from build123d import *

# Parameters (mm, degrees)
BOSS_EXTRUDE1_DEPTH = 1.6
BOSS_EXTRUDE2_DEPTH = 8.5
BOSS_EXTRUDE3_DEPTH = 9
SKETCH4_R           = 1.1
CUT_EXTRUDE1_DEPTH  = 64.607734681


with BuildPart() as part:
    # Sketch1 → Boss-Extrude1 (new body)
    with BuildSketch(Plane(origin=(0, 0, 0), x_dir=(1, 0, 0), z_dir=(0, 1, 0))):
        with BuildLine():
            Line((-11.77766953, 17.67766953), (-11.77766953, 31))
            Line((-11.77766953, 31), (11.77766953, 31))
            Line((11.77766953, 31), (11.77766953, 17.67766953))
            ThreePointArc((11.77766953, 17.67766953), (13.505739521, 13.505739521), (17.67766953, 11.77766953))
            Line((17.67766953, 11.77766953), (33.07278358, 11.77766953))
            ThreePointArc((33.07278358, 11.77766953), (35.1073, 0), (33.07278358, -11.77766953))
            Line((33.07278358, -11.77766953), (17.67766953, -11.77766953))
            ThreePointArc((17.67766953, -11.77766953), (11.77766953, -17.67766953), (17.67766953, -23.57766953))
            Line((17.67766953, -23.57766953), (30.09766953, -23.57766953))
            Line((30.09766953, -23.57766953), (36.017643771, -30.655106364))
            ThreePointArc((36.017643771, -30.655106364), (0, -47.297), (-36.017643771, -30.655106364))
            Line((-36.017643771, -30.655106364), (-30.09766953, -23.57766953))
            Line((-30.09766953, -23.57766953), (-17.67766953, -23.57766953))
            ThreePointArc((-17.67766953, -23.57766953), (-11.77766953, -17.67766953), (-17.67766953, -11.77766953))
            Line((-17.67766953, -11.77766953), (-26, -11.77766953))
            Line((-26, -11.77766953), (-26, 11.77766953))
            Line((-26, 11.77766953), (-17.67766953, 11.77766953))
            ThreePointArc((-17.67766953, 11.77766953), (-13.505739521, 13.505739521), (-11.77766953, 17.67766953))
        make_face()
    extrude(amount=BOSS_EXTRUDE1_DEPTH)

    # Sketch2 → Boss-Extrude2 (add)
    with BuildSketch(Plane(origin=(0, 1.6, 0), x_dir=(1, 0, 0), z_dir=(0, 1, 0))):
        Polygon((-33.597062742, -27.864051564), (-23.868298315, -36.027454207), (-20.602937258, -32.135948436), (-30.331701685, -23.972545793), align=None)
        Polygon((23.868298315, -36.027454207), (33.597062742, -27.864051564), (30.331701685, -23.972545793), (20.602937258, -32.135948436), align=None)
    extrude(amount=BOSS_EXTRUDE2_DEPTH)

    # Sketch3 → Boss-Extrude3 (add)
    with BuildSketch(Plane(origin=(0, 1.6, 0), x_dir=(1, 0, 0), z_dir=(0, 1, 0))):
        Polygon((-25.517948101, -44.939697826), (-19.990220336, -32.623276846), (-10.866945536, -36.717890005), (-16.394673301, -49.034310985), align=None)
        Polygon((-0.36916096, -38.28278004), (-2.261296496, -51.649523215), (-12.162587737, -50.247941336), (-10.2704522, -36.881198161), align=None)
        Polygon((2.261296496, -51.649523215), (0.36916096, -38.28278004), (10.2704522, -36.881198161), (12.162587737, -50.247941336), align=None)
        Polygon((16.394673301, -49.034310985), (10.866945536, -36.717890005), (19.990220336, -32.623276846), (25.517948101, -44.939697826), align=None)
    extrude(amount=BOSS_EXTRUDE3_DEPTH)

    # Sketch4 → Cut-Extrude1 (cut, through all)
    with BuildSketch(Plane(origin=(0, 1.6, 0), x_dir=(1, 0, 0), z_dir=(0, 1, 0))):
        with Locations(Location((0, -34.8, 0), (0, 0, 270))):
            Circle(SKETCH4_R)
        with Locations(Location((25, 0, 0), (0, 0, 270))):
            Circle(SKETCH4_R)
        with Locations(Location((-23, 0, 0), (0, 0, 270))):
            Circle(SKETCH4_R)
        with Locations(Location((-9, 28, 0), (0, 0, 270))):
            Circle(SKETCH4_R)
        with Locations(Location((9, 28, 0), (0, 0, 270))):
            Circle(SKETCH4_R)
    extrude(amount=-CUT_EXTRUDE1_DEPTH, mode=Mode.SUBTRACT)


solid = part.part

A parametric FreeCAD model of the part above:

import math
import FreeCAD as App
import Part
import Sketcher
from FreeCAD import Vector
Q = App.Units.Quantity


def add_polygon(sketch, points):
    """Adds a closed chain of lines whose ends are joined by coincident constraints."""
    first, n = sketch.GeometryCount, len(points)
    for a, b in zip(points, points[1:] + points[:1]):
        sketch.addGeometry(Part.LineSegment(App.Vector(*a, 0), App.Vector(*b, 0)), False)
    for i in range(n):
        sketch.addConstraint(Sketcher.Constraint("Coincident", first + i, 2, first + (i + 1) % n, 1))

doc = App.newDocument("Part")
body = doc.addObject("PartDesign::Body", "Body")

# Sketch on XZ plane
sketch1 = doc.addObject("Sketcher::SketchObject", "Sketch")
body.addObject(sketch1)
sketch1.AttachmentSupport = (doc.XZ_Plane, [""])
sketch1.MapMode = "FlatFace"
sketch1.addGeometry(Part.LineSegment(Vector(-12, -31, 0), Vector(-12, -18, 0)), False)
sketch1.addGeometry(Part.ArcOfCircle(Part.Circle(Vector(-18, -18, 0), Vector(0, 0, 1), 6), math.radians(0), math.radians(90)), False)
sketch1.addGeometry(Part.LineSegment(Vector(-18, -12, 0), Vector(-26, -12, 0)), False)
sketch1.addGeometry(Part.LineSegment(Vector(-26, -12, 0), Vector(-26, 12, 0)), False)
sketch1.addGeometry(Part.LineSegment(Vector(-26, 12, 0), Vector(-18, 12, 0)), False)
sketch1.addGeometry(Part.ArcOfCircle(Part.Circle(Vector(-18, 18, 0), Vector(0, 0, 1), 6), math.radians(-90), math.radians(90)), False)
sketch1.addGeometry(Part.LineSegment(Vector(-18, 24, 0), Vector(-30, 24, 0)), False)
sketch1.addGeometry(Part.LineSegment(Vector(-30, 24, 0), Vector(-36, 31, 0)), False)
sketch1.addGeometry(Part.ArcOfCircle(Part.Circle(Vector(0, 0, 0), Vector(0, 0, 1), 47), math.radians(40), math.radians(140)), False)
sketch1.addGeometry(Part.LineSegment(Vector(36, 31, 0), Vector(30, 24, 0)), False)
sketch1.addGeometry(Part.LineSegment(Vector(30, 24, 0), Vector(18, 24, 0)), False)
sketch1.addGeometry(Part.ArcOfCircle(Part.Circle(Vector(18, 18, 0), Vector(0, 0, 1), 6), math.radians(90), math.radians(270)), False)
sketch1.addGeometry(Part.LineSegment(Vector(18, 12, 0), Vector(33, 12, 0)), False)
sketch1.addGeometry(Part.ArcOfCircle(Part.Circle(Vector(0, 0, 0), Vector(0, 0, 1), 35), math.radians(-20), math.radians(20)), False)
sketch1.addGeometry(Part.LineSegment(Vector(33, -12, 0), Vector(18, -12, 0)), False)
sketch1.addGeometry(Part.ArcOfCircle(Part.Circle(Vector(18, -18, 0), Vector(0, 0, 1), 6), math.radians(90), math.radians(180)), False)
sketch1.addGeometry(Part.LineSegment(Vector(12, -18, 0), Vector(12, -31, 0)), False)
sketch1.addGeometry(Part.LineSegment(Vector(12, -31, 0), Vector(-12, -31, 0)), False)
sketch1.addConstraint(Sketcher.Constraint("Tangent", 0, 2, 1, 1))
sketch1.addConstraint(Sketcher.Constraint("Tangent", 1, 2, 2, 1))
sketch1.addConstraint(Sketcher.Constraint("Coincident", 2, 2, 3, 1))
sketch1.addConstraint(Sketcher.Constraint("Coincident", 3, 2, 4, 1))
sketch1.addConstraint(Sketcher.Constraint("Tangent", 4, 2, 5, 1))
sketch1.addConstraint(Sketcher.Constraint("Tangent", 5, 2, 6, 1))
sketch1.addConstraint(Sketcher.Constraint("Coincident", 6, 2, 7, 1))
sketch1.addConstraint(Sketcher.Constraint("Coincident", 7, 2, 8, 2))
sketch1.addConstraint(Sketcher.Constraint("Coincident", 8, 1, 9, 1))
sketch1.addConstraint(Sketcher.Constraint("Coincident", 9, 2, 10, 1))
sketch1.addConstraint(Sketcher.Constraint("Tangent", 10, 2, 11, 1))
sketch1.addConstraint(Sketcher.Constraint("Tangent", 11, 2, 12, 1))
sketch1.addConstraint(Sketcher.Constraint("Coincident", 12, 2, 13, 2))
sketch1.addConstraint(Sketcher.Constraint("Coincident", 13, 1, 14, 1))
sketch1.addConstraint(Sketcher.Constraint("Tangent", 14, 2, 15, 1))
sketch1.addConstraint(Sketcher.Constraint("Tangent", 15, 2, 16, 1))
sketch1.addConstraint(Sketcher.Constraint("Coincident", 16, 2, 17, 1))
sketch1.addConstraint(Sketcher.Constraint("Coincident", 17, 2, 0, 1))
sketch1.addConstraint(Sketcher.Constraint("Vertical", 0))
sketch1.addConstraint(Sketcher.Constraint("Horizontal", 2))
sketch1.addConstraint(Sketcher.Constraint("Vertical", 3))
sketch1.addConstraint(Sketcher.Constraint("Horizontal", 4))
sketch1.addConstraint(Sketcher.Constraint("Horizontal", 6))
sketch1.addConstraint(Sketcher.Constraint("Horizontal", 10))
sketch1.addConstraint(Sketcher.Constraint("Horizontal", 12))
sketch1.addConstraint(Sketcher.Constraint("Horizontal", 14))
sketch1.addConstraint(Sketcher.Constraint("Vertical", 16))
sketch1.addConstraint(Sketcher.Constraint("Horizontal", 17))
sketch1.addConstraint(Sketcher.Constraint("Coincident", 8, 3, -1, 1))
sketch1.addConstraint(Sketcher.Constraint("Coincident", 13, 3, -1, 1))
sketch1.addConstraint(Sketcher.Constraint("Equal", 1, 5))
sketch1.addConstraint(Sketcher.Constraint("Equal", 5, 11))
sketch1.addConstraint(Sketcher.Constraint("Equal", 11, 15))
sketch1.addConstraint(Sketcher.Constraint("Symmetric", 1, 3, 11, 3, -1, 1))
sketch1.addConstraint(Sketcher.Constraint("Symmetric", 5, 3, 15, 3, -1, 1))
sketch1.addConstraint(Sketcher.Constraint("Symmetric", 5, 3, 11, 3, -2))
sketch1.addConstraint(Sketcher.Constraint("Horizontal", 7, 2, 8, 1))
sketch1.addConstraint(Sketcher.Constraint("Equal", 6, 10))
sketch1.addConstraint(Sketcher.Constraint("Equal", 17, 3))
sketch1.addConstraint(Sketcher.Constraint("Radius", 1, Q("5.9 mm")))
sketch1.addConstraint(Sketcher.Constraint("DistanceX", 2, 2, -1, 1, Q("26 mm")))
sketch1.addConstraint(Sketcher.Constraint("DistanceY", 16, 2, -1, 1, Q("31 mm")))
sketch1.addConstraint(Sketcher.Constraint("Radius", 8, Q("47.297 mm")))
sketch1.addConstraint(Sketcher.Constraint("DistanceX", 6, 2, 6, 1, Q("12.42 mm")))
sketch1.addConstraint(Sketcher.Constraint("Radius", 13, Q("35.1073 mm")))
sketch1.addConstraint(Sketcher.Constraint("DistanceX", 2, 2, 2, 1, Q("8.32233 mm")))
sketch1.addConstraint(Sketcher.Constraint("Distance", 7, Q("9.226928 mm")))
pad1 = doc.addObject("PartDesign::Pad", "Pad")
body.addObject(pad1)
pad1.Profile = sketch1
pad1.Length = 1.6
pad1.Reversed = True

# Sketch on XZ plane
sketch2 = doc.addObject("Sketcher::SketchObject", "Sketch001")
body.addObject(sketch2)
sketch2.AttachmentSupport = (doc.XZ_Plane, [""])
sketch2.MapMode = "FlatFace"
sketch2.AttachmentOffset = App.Placement(Vector(0, 0, -1.6), App.Rotation())
add_polygon(sketch2, [(-34, 28), (-24, 36), (-21, 32), (-30, 24)])  # lines 0-3
add_polygon(sketch2, [(24, 36), (34, 28), (30, 24), (21, 32)])  # lines 4-7
sketch2.addConstraint(Sketcher.Constraint("Symmetric", 3, 2, 4, 2, -2))
sketch2.addConstraint(Sketcher.Constraint("Symmetric", 2, 2, 5, 2, -2))
sketch2.addConstraint(Sketcher.Constraint("Symmetric", 1, 2, 6, 2, -2))
sketch2.addConstraint(Sketcher.Constraint("Symmetric", 0, 2, 7, 2, -2))
sketch2.addConstraint(Sketcher.Constraint("Perpendicular", 0, 1))
sketch2.addConstraint(Sketcher.Constraint("Perpendicular", 1, 2))
sketch2.addConstraint(Sketcher.Constraint("Perpendicular", 2, 3))
sketch2.addConstraint(Sketcher.Constraint("Angle", 0, Q("40 deg")))
sketch2.addConstraint(Sketcher.Constraint("Distance", 0, Q("12.7 mm")))
sketch2.addConstraint(Sketcher.Constraint("DistanceX", 1, 2, 4, 2, Q("54.2 mm")))
sketch2.addConstraint(Sketcher.Constraint("Distance", 1, Q("5.08 mm")))
sketch2.addConstraint(Sketcher.Constraint("DistanceY", -1, 1, 1, 2, Q("32.135948 mm")))
pad2 = doc.addObject("PartDesign::Pad", "Pad001")
body.addObject(pad2)
pad2.Profile = sketch2
pad2.Length = 8.5
pad2.Reversed = True

# Sketch on XZ plane
sketch3 = doc.addObject("Sketcher::SketchObject", "Sketch002")
body.addObject(sketch3)
sketch3.AttachmentSupport = (doc.XZ_Plane, [""])
sketch3.MapMode = "FlatFace"
sketch3.AttachmentOffset = App.Placement(Vector(0, 0, -1.6), App.Rotation())
add_polygon(sketch3, [(-19.99022, 32.623277), (-25.517948, 44.939698), (-16.394673, 49.034311), (-10.866946, 36.71789)])  # lines 0-3
add_polygon(sketch3, [(-2.261296, 51.649523), (-0.369161, 38.28278), (-10.270452, 36.881198), (-12.162588, 50.247941)])  # lines 4-7
add_polygon(sketch3, [(0.369161, 38.28278), (2.261296, 51.649523), (12.162588, 50.247941), (10.270452, 36.881198)])  # lines 8-11
add_polygon(sketch3, [(10.866946, 36.71789), (16.394673, 49.034311), (25.517948, 44.939698), (19.99022, 32.623277)])  # lines 12-15
sketch3.addConstraint(Sketcher.Constraint("Symmetric", 7, 2, 8, 2, -2))
sketch3.addConstraint(Sketcher.Constraint("Symmetric", 6, 2, 9, 2, -2))
sketch3.addConstraint(Sketcher.Constraint("Symmetric", 5, 2, 10, 2, -2))
sketch3.addConstraint(Sketcher.Constraint("Symmetric", 4, 2, 11, 2, -2))
sketch3.addConstraint(Sketcher.Constraint("Symmetric", 1, 2, 12, 2, -2))
sketch3.addConstraint(Sketcher.Constraint("Symmetric", 0, 2, 13, 2, -2))
sketch3.addConstraint(Sketcher.Constraint("Symmetric", 3, 2, 14, 2, -2))
sketch3.addConstraint(Sketcher.Constraint("Symmetric", 2, 2, 15, 2, -2))
sketch3.addConstraint(Sketcher.Constraint("Perpendicular", 0, 1))
sketch3.addConstraint(Sketcher.Constraint("Perpendicular", 1, 2))
sketch3.addConstraint(Sketcher.Constraint("Perpendicular", 2, 3))
sketch3.addConstraint(Sketcher.Constraint("Perpendicular", 4, 5))
sketch3.addConstraint(Sketcher.Constraint("Perpendicular", 5, 6))
sketch3.addConstraint(Sketcher.Constraint("Perpendicular", 6, 7))
sketch3.addConstraint(Sketcher.Constraint("Equal", 2, 4))
sketch3.addConstraint(Sketcher.Constraint("Equal", 3, 5))
sketch3.addConstraint(Sketcher.Constraint("Distance", 1, Q("10 mm")))
sketch3.addConstraint(Sketcher.Constraint("Distance", 0, Q("13.5 mm")))
sketch3.addConstraint(Sketcher.Constraint("DistanceY", -1, 1, 5, 2, Q("36.881198 mm")))
sketch3.addConstraint(Sketcher.Constraint("DistanceY", 5, 2, 0, 2, Q("8.0585 mm")))
sketch3.addConstraint(Sketcher.Constraint("DistanceX", 0, 2, -1, 1, Q("25.517948 mm")))
sketch3.addConstraint(Sketcher.Constraint("DistanceY", -1, 1, 1, 2, Q("49.034311 mm")))
sketch3.addConstraint(Sketcher.Constraint("DistanceX", 4, 2, -1, 1, Q("0.369161 mm")))
sketch3.addConstraint(Sketcher.Constraint("DistanceY", -1, 1, 4, 2, Q("38.28278 mm")))
pad3 = doc.addObject("PartDesign::Pad", "Pad002")
body.addObject(pad3)
pad3.Profile = sketch3
pad3.Length = 9
pad3.Reversed = True

# Sketch on XZ plane
sketch4 = doc.addObject("Sketcher::SketchObject", "Sketch003")
body.addObject(sketch4)
sketch4.AttachmentSupport = (doc.XZ_Plane, [""])
sketch4.MapMode = "FlatFace"
sketch4.AttachmentOffset = App.Placement(Vector(0, 0, -1.6), App.Rotation())
sketch4.addGeometry(Part.Circle(Vector(0, 34.8, 0), Vector(0, 0, 1), 1.1), False)
sketch4.addGeometry(Part.Circle(Vector(25, 0, 0), Vector(0, 0, 1), 1.1), False)
sketch4.addGeometry(Part.Circle(Vector(-23, 0, 0), Vector(0, 0, 1), 1.1), False)
sketch4.addGeometry(Part.Circle(Vector(-9, -28, 0), Vector(0, 0, 1), 1.1), False)
sketch4.addGeometry(Part.Circle(Vector(9, -28, 0), Vector(0, 0, 1), 1.1), False)
sketch4.addConstraint(Sketcher.Constraint("Equal", 0, 1))
sketch4.addConstraint(Sketcher.Constraint("Equal", 1, 2))
sketch4.addConstraint(Sketcher.Constraint("Equal", 2, 3))
sketch4.addConstraint(Sketcher.Constraint("Equal", 3, 4))
sketch4.addConstraint(Sketcher.Constraint("Symmetric", 3, 3, 4, 3, -2))
sketch4.addConstraint(Sketcher.Constraint("PointOnObject", 0, 3, -2))
sketch4.addConstraint(Sketcher.Constraint("PointOnObject", 1, 3, -1))
sketch4.addConstraint(Sketcher.Constraint("PointOnObject", 2, 3, -1))
sketch4.addConstraint(Sketcher.Constraint("Diameter", 0, Q("2.2 mm")))
sketch4.addConstraint(Sketcher.Constraint("DistanceX", -1, 1, 1, 3, Q("25 mm")))
sketch4.addConstraint(Sketcher.Constraint("DistanceX", 2, 3, -1, 1, Q("23 mm")))
sketch4.addConstraint(Sketcher.Constraint("DistanceX", 3, 3, -1, 1, Q("9 mm")))
sketch4.addConstraint(Sketcher.Constraint("DistanceY", 3, 3, -1, 1, Q("28 mm")))
sketch4.addConstraint(Sketcher.Constraint("DistanceY", -1, 1, 0, 3, Q("34.8 mm")))
pocket1 = doc.addObject("PartDesign::Pocket", "Pocket")
body.addObject(pocket1)
pocket1.Profile = sketch4
pocket1.Type = "ThroughAll"
pocket1.Reversed = True

doc.recompute()
